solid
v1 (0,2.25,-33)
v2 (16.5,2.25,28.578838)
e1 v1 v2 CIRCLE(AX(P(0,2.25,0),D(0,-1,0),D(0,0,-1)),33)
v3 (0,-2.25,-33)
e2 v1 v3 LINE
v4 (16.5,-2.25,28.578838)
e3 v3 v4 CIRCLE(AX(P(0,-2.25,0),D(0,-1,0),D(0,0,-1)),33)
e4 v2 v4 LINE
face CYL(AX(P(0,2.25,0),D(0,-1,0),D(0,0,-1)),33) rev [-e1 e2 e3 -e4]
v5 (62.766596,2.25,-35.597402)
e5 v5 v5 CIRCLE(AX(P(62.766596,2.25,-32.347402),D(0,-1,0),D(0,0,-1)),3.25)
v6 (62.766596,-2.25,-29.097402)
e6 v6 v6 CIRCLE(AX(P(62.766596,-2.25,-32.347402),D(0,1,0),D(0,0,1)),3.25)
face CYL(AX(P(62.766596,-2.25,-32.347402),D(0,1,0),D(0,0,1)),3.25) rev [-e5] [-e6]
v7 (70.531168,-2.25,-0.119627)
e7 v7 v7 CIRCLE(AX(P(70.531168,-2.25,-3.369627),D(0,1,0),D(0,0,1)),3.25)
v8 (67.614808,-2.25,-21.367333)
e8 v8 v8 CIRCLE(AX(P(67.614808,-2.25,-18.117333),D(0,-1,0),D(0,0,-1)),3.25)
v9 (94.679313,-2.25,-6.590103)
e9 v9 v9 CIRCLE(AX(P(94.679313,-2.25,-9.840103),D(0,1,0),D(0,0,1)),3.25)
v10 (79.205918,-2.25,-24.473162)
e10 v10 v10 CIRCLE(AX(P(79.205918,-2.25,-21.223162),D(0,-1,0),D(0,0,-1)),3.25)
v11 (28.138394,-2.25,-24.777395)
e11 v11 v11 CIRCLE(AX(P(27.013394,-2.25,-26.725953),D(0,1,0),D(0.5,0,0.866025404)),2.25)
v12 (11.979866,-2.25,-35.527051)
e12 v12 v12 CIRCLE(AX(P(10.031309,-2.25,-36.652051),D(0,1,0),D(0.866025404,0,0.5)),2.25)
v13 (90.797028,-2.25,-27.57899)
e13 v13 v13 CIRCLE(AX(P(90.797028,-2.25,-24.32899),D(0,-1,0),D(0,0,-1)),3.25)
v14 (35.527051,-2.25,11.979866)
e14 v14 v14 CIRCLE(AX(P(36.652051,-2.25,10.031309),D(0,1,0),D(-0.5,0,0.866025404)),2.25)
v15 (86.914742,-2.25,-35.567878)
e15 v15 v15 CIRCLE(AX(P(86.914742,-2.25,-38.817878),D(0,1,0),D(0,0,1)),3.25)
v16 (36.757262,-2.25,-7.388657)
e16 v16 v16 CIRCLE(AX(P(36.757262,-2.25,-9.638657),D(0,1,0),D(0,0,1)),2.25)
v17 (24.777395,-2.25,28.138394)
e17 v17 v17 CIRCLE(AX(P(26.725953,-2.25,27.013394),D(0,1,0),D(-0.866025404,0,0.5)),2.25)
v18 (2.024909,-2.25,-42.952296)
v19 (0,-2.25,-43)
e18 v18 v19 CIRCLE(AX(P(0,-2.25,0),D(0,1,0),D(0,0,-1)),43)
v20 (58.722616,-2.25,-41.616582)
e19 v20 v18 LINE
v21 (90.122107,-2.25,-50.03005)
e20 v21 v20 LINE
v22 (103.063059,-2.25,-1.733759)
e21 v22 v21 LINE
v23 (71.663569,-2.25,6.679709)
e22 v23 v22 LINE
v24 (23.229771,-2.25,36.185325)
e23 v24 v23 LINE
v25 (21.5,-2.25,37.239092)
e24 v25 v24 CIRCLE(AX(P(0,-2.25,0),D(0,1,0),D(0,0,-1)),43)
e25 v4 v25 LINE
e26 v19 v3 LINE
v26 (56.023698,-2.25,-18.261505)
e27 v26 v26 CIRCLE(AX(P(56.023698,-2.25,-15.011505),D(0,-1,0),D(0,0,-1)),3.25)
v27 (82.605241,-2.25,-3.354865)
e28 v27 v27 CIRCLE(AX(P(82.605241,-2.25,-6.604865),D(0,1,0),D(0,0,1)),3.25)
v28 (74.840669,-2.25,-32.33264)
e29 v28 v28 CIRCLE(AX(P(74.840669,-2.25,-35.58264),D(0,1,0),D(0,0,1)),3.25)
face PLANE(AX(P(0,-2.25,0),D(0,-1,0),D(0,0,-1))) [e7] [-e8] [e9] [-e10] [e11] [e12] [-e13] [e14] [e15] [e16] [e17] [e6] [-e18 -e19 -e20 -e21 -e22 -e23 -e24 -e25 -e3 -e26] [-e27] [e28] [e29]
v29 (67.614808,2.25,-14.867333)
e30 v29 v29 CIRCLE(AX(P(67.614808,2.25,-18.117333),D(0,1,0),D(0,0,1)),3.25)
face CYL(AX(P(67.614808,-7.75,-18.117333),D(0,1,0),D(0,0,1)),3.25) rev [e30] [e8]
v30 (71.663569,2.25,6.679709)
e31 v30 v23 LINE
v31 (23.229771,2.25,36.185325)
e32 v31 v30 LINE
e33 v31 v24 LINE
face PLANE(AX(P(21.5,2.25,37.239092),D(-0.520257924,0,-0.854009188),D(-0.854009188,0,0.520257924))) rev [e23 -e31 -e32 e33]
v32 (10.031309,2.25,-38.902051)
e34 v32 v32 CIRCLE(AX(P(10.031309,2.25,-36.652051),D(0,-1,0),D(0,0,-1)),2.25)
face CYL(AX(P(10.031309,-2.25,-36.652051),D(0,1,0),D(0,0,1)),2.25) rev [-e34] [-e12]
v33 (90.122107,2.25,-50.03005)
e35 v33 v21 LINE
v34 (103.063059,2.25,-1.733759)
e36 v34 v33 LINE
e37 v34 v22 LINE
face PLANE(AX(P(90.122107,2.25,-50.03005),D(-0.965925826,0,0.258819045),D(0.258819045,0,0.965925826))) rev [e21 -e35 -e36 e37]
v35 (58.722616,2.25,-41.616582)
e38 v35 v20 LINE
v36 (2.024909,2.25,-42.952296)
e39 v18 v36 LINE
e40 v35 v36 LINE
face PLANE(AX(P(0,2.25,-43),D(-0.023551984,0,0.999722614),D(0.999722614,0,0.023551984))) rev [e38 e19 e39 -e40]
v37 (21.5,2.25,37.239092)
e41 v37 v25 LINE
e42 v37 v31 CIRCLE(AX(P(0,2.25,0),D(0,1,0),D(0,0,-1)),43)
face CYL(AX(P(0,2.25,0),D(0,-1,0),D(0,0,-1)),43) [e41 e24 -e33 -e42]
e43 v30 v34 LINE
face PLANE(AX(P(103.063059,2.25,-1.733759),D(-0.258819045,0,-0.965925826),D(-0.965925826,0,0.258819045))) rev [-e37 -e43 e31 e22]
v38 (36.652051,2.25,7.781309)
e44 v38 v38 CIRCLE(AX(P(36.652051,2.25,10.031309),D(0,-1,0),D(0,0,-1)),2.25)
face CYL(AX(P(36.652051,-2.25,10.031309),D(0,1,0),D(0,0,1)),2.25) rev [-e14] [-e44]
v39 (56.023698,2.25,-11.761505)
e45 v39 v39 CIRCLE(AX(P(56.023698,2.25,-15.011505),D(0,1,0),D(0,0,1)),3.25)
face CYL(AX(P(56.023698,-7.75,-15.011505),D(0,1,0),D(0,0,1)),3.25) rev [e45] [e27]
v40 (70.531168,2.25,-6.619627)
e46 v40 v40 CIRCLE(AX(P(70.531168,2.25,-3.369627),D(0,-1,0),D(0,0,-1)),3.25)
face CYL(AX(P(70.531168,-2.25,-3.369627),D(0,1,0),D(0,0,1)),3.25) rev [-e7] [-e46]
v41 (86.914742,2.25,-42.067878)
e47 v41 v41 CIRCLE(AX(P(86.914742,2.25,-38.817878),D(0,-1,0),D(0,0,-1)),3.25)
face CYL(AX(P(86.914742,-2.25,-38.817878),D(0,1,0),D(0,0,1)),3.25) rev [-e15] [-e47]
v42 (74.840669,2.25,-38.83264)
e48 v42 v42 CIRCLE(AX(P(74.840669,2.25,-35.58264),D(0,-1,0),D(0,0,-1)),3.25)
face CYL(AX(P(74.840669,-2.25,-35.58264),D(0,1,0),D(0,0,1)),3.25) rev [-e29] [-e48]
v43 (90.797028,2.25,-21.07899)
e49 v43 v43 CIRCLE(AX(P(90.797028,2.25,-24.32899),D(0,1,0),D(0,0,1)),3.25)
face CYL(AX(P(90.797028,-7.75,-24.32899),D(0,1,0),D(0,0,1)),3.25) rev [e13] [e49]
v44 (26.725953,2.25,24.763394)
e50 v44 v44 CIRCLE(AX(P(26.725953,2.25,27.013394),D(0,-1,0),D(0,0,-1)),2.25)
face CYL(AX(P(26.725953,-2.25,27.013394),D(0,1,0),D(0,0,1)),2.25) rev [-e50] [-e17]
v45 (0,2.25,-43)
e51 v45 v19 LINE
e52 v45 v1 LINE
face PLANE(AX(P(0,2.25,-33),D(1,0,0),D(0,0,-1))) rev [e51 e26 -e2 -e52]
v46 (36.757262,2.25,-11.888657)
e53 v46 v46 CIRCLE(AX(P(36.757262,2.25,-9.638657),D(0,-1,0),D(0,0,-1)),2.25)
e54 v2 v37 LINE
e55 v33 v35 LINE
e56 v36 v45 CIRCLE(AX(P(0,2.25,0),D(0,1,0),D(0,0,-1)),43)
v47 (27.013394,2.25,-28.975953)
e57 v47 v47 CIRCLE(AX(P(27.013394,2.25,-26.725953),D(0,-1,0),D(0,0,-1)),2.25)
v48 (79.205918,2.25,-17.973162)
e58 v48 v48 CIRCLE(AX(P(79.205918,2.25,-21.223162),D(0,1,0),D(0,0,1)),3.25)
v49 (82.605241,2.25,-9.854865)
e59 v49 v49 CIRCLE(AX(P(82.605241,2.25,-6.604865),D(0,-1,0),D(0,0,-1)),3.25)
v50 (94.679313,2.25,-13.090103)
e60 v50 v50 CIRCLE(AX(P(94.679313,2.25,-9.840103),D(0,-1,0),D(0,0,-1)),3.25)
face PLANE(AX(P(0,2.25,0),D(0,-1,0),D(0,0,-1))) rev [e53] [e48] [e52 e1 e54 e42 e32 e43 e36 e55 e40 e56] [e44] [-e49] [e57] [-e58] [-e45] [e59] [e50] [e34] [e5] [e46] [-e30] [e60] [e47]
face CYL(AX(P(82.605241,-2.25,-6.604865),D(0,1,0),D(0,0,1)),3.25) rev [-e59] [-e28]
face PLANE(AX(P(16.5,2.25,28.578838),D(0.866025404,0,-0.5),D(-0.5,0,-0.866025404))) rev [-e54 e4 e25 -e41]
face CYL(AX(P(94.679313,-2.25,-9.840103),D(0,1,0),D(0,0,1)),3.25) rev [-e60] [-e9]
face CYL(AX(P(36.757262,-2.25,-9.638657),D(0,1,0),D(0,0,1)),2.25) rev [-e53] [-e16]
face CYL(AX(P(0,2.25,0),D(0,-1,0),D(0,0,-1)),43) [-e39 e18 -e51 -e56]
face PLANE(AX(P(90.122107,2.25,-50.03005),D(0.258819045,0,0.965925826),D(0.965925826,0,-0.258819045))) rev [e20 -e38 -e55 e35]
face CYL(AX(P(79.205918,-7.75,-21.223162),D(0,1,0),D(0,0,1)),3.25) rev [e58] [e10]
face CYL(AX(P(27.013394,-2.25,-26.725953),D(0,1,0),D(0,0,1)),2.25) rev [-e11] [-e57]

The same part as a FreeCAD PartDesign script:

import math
import FreeCAD as App
import Part
import Sketcher
from FreeCAD import Vector
Q = App.Units.Quantity


def add_polygon(sketch, points):
    """Adds a closed chain of lines whose ends are joined by coincident constraints."""
    first, n = sketch.GeometryCount, len(points)
    for a, b in zip(points, points[1:] + points[:1]):
        sketch.addGeometry(Part.LineSegment(App.Vector(*a, 0), App.Vector(*b, 0)), False)
    for i in range(n):
        sketch.addConstraint(Sketcher.Constraint("Coincident", first + i, 2, first + (i + 1) % n, 1))

doc = App.newDocument("Part")
body = doc.addObject("PartDesign::Body", "Body")

sketch1 = doc.addObject("Sketcher::SketchObject", "Sketch")
body.addObject(sketch1)
sketch1.AttachmentSupport = (doc.XZ_Plane, [""])
sketch1.MapMode = "FlatFace"
sketch1.addGeometry([
    Part.LineSegment(Vector(0, -43, 0), Vector(0, -33, 0)),
    Part.ArcOfCircle(Part.Circle(Vector(0, 0, 0), Vector(0, 0, 1), 33), math.radians(-90), math.radians(60)),
    Part.LineSegment(Vector(16, 29, 0), Vector(22, 37, 0)),
    Part.ArcOfCircle(Part.Circle(Vector(0, 0, 0), Vector(0, 0, 1), 43), math.radians(-90), math.radians(60)),
], False)
sketch1.addConstraint([
    Sketcher.Constraint("Coincident", 0, 2, 1, 1),
    Sketcher.Constraint("Coincident", 1, 2, 2, 1),
    Sketcher.Constraint("Coincident", 2, 2, 3, 2),
    Sketcher.Constraint("Coincident", 3, 1, 0, 1),
    Sketcher.Constraint("Vertical", 0),
    Sketcher.Constraint("Coincident", 1, 3, -1, 1),
    Sketcher.Constraint("Coincident", 3, 3, -1, 1),
    Sketcher.Constraint("PointOnObject", 0, 2, -2),
    Sketcher.Constraint("Radius", 1, Q("33 mm")),
    Sketcher.Constraint("Radius", 3, Q("43 mm")),
    Sketcher.Constraint("Angle", 2, Q("60 deg")),
    Sketcher.Constraint("DistanceX", -1, 1, 1, 2, Q("16.5 mm")),
])
pad1 = doc.addObject("PartDesign::Pad", "Pad")
body.addObject(pad1)
pad1.Profile = sketch1
pad1.Length = 4.5
pad1.Midplane = True

sketch2 = doc.addObject("Sketcher::SketchObject", "Sketch001")
body.addObject(sketch2)
sketch2.AttachmentSupport = (doc.XZ_Plane, [""])
sketch2.MapMode = "FlatFace"
add_polygon(sketch2, [(90, -50), (25, -33), (38, 16), (103, -2)])
sketch2.addConstraint([
    Sketcher.Constraint("Perpendicular", 0, 1),
    Sketcher.Constraint("Perpendicular", 1, 2),
    Sketcher.Constraint("Perpendicular", 2, 3),
    Sketcher.Constraint("Angle", 0, Q("165 deg")),
    Sketcher.Constraint("Distance", 0, Q("67 mm")),
    Sketcher.Constraint("Distance", 1, Q("50 mm")),
    Sketcher.Constraint("DistanceX", -1, 1, 1, 2, Q("38.346028 mm")),
    Sketcher.Constraint("DistanceY", 2, 2, -1, 1, Q("1.733759 mm")),
])
pad2 = doc.addObject("PartDesign::Pad", "Pad001")
body.addObject(pad2)
pad2.Profile = sketch2
pad2.Length = 4.5
pad2.Midplane = True

sketch3 = doc.addObject("Sketcher::SketchObject", "Sketch002")
body.addObject(sketch3)
sketch3.AttachmentSupport = (doc.XZ_Plane, [""])
sketch3.MapMode = "FlatFace"
add_polygon(sketch3, [(59, -42), (0, -43), (27, -33)])
add_polygon(sketch3, [(72, 7), (40, 15), (22, 37)])
sketch3.addConstraint([
    Sketcher.Constraint("PointOnObject", 0, 2, -2),
    Sketcher.Constraint("Parallel", 2, 3),
    Sketcher.Constraint("Equal", 2, 3),
    Sketcher.Constraint("Equal", 1, 4),
    Sketcher.Constraint("Equal", 0, 5),
    Sketcher.Constraint("Angle", 2, Q("-15 deg")),
    Sketcher.Constraint("DistanceY", 0, 2, -1, 1, Q("43 mm")),
    Sketcher.Constraint("DistanceX", -1, 1, 4, 2, Q("21.5 mm")),
    Sketcher.Constraint("Distance", 0, Q("58.73891 mm")),
    Sketcher.Constraint("DistanceX", -1, 1, 3, 2, Q("40.264078 mm")),
    Sketcher.Constraint("DistanceX", -1, 1, 5, 2, Q("71.663569 mm")),
    Sketcher.Constraint("DistanceY", -1, 1, 5, 2, Q("6.679709 mm")),
])
pad3 = doc.addObject("PartDesign::Pad", "Pad002")
body.addObject(pad3)
pad3.Profile = sketch3
pad3.Length = 4.5
pad3.Midplane = True

sketch4 = doc.addObject("Sketcher::SketchObject", "Sketch003")
body.addObject(sketch4)
sketch4.AttachmentSupport = (doc.XZ_Plane, [""])
sketch4.MapMode = "FlatFace"
sketch4.AttachmentOffset = App.Placement(Vector(0, 0, 3.25), App.Rotation())
sketch4.addGeometry(Part.Circle(Vector(36.8, -9.6, 0), Vector(0, 0, 1), 2.2), False)
sketch4.addConstraint([
    Sketcher.Constraint("Diameter", 0, Q("4.5 mm")),
    Sketcher.Constraint("DistanceX", -1, 1, 0, 3, Q("36.757262 mm")),
    Sketcher.Constraint("DistanceY", 0, 3, -1, 1, Q("9.638657 mm")),
])
pocket1 = doc.addObject("PartDesign::Pocket", "Pocket")
body.addObject(pocket1)
pocket1.Profile = sketch4
pocket1.Length = 6.5
doc.recompute()

polarpattern = doc.addObject("PartDesign::PolarPattern", "PolarPattern")
body.addObject(polarpattern)
polarpattern.Originals = [pocket1]
polarpattern.Axis = (doc.Y_Axis, [""])
polarpattern.Angle = 60
polarpattern.Occurrences = 3
polarpattern.Reversed = True
body.Tip = polarpattern
doc.recompute()

polarpattern2 = doc.addObject("PartDesign::PolarPattern", "PolarPattern001")
body.addObject(polarpattern2)
polarpattern2.Originals = [pocket1]
polarpattern2.Axis = (doc.Y_Axis, [""])
polarpattern2.Angle = 60
polarpattern2.Occurrences = 3
body.Tip = polarpattern2

sketch5 = doc.addObject("Sketcher::SketchObject", "Sketch004")
body.addObject(sketch5)
sketch5.AttachmentSupport = (doc.XZ_Plane, [""])
sketch5.MapMode = "FlatFace"
sketch5.AttachmentOffset = App.Placement(Vector(0, 0, 3.25), App.Rotation())
sketch5.addGeometry([
    Part.Circle(Vector(94.7, -9.8, 0), Vector(0, 0, 1), 3.2),
    Part.Circle(Vector(86.9, -38.8, 0), Vector(0, 0, 1), 3.2),
], False)
sketch5.addConstraint([
    Sketcher.Constraint("Equal", 0, 1),
    Sketcher.Constraint("Diameter", 0, Q("6.5 mm")),
    Sketcher.Constraint("DistanceX", -1, 1, 1, 3, Q("86.914742 mm")),
    Sketcher.Constraint("DistanceX", 1, 3, 0, 3, Q("7.764571 mm")),
    Sketcher.Constraint("DistanceY", 0, 3, -1, 1, Q("9.840103 mm")),
    Sketcher.Constraint("DistanceY", 1, 3, -1, 1, Q("38.817878 mm")),
])
pocket2 = doc.addObject("PartDesign::Pocket", "Pocket001")
body.addObject(pocket2)
pocket2.Profile = sketch5
pocket2.Length = 6.5
doc.recompute()

datumline = doc.addObject("PartDesign::Line", "DatumLine")
body.addObject(datumline)
datumline.Placement = App.Placement(Vector(0, 0, 0), App.Rotation(Vector(0, 0, 1), Vector(-0.965925826, 0, 0.258819045)))
linearpattern = doc.addObject("PartDesign::LinearPattern", "LinearPattern")
body.addObject(linearpattern)
linearpattern.Originals = [pocket2]
linearpattern.Direction = (datumline, [""])
linearpattern.Mode = "offset"
linearpattern.Offset = 12.5
linearpattern.Occurrences = 3
body.Tip = linearpattern

sketch6 = doc.addObject("Sketcher::SketchObject", "Sketch005")
body.addObject(sketch6)
sketch6.AttachmentSupport = (doc.XZ_Plane, [""])
sketch6.MapMode = "FlatFace"
sketch6.AttachmentOffset = App.Placement(Vector(0, 0, -2.25), App.Rotation())
sketch6.addGeometry(Part.Circle(Vector(90.8, -24.3, 0), Vector(0, 0, 1), 3.2), False)
sketch6.addConstraint([
    Sketcher.Constraint("Diameter", 0, Q("6.5 mm")),
    Sketcher.Constraint("DistanceY", 0, 3, -1, 1, Q("24.32899 mm")),
    Sketcher.Constraint("DistanceX", -1, 1, 0, 3, Q("90.797028 mm")),
])
pocket3 = doc.addObject("PartDesign::Pocket", "Pocket002")
body.addObject(pocket3)
pocket3.Profile = sketch6
pocket3.Length = 10
pocket3.Reversed = True
doc.recompute()

datumline2 = doc.addObject("PartDesign::Line", "DatumLine001")
body.addObject(datumline2)
datumline2.Placement = App.Placement(Vector(0, 0, 0), App.Rotation(Vector(0, 0, 1), Vector(-0.965925826, 0, 0.258819045)))
linearpattern2 = doc.addObject("PartDesign::LinearPattern", "LinearPattern001")
body.addObject(linearpattern2)
linearpattern2.Originals = [pocket3]
linearpattern2.Direction = (datumline2, [""])
linearpattern2.Mode = "offset"
linearpattern2.Offset = 12
linearpattern2.Occurrences = 4
body.Tip = linearpattern2

doc.recompute()
